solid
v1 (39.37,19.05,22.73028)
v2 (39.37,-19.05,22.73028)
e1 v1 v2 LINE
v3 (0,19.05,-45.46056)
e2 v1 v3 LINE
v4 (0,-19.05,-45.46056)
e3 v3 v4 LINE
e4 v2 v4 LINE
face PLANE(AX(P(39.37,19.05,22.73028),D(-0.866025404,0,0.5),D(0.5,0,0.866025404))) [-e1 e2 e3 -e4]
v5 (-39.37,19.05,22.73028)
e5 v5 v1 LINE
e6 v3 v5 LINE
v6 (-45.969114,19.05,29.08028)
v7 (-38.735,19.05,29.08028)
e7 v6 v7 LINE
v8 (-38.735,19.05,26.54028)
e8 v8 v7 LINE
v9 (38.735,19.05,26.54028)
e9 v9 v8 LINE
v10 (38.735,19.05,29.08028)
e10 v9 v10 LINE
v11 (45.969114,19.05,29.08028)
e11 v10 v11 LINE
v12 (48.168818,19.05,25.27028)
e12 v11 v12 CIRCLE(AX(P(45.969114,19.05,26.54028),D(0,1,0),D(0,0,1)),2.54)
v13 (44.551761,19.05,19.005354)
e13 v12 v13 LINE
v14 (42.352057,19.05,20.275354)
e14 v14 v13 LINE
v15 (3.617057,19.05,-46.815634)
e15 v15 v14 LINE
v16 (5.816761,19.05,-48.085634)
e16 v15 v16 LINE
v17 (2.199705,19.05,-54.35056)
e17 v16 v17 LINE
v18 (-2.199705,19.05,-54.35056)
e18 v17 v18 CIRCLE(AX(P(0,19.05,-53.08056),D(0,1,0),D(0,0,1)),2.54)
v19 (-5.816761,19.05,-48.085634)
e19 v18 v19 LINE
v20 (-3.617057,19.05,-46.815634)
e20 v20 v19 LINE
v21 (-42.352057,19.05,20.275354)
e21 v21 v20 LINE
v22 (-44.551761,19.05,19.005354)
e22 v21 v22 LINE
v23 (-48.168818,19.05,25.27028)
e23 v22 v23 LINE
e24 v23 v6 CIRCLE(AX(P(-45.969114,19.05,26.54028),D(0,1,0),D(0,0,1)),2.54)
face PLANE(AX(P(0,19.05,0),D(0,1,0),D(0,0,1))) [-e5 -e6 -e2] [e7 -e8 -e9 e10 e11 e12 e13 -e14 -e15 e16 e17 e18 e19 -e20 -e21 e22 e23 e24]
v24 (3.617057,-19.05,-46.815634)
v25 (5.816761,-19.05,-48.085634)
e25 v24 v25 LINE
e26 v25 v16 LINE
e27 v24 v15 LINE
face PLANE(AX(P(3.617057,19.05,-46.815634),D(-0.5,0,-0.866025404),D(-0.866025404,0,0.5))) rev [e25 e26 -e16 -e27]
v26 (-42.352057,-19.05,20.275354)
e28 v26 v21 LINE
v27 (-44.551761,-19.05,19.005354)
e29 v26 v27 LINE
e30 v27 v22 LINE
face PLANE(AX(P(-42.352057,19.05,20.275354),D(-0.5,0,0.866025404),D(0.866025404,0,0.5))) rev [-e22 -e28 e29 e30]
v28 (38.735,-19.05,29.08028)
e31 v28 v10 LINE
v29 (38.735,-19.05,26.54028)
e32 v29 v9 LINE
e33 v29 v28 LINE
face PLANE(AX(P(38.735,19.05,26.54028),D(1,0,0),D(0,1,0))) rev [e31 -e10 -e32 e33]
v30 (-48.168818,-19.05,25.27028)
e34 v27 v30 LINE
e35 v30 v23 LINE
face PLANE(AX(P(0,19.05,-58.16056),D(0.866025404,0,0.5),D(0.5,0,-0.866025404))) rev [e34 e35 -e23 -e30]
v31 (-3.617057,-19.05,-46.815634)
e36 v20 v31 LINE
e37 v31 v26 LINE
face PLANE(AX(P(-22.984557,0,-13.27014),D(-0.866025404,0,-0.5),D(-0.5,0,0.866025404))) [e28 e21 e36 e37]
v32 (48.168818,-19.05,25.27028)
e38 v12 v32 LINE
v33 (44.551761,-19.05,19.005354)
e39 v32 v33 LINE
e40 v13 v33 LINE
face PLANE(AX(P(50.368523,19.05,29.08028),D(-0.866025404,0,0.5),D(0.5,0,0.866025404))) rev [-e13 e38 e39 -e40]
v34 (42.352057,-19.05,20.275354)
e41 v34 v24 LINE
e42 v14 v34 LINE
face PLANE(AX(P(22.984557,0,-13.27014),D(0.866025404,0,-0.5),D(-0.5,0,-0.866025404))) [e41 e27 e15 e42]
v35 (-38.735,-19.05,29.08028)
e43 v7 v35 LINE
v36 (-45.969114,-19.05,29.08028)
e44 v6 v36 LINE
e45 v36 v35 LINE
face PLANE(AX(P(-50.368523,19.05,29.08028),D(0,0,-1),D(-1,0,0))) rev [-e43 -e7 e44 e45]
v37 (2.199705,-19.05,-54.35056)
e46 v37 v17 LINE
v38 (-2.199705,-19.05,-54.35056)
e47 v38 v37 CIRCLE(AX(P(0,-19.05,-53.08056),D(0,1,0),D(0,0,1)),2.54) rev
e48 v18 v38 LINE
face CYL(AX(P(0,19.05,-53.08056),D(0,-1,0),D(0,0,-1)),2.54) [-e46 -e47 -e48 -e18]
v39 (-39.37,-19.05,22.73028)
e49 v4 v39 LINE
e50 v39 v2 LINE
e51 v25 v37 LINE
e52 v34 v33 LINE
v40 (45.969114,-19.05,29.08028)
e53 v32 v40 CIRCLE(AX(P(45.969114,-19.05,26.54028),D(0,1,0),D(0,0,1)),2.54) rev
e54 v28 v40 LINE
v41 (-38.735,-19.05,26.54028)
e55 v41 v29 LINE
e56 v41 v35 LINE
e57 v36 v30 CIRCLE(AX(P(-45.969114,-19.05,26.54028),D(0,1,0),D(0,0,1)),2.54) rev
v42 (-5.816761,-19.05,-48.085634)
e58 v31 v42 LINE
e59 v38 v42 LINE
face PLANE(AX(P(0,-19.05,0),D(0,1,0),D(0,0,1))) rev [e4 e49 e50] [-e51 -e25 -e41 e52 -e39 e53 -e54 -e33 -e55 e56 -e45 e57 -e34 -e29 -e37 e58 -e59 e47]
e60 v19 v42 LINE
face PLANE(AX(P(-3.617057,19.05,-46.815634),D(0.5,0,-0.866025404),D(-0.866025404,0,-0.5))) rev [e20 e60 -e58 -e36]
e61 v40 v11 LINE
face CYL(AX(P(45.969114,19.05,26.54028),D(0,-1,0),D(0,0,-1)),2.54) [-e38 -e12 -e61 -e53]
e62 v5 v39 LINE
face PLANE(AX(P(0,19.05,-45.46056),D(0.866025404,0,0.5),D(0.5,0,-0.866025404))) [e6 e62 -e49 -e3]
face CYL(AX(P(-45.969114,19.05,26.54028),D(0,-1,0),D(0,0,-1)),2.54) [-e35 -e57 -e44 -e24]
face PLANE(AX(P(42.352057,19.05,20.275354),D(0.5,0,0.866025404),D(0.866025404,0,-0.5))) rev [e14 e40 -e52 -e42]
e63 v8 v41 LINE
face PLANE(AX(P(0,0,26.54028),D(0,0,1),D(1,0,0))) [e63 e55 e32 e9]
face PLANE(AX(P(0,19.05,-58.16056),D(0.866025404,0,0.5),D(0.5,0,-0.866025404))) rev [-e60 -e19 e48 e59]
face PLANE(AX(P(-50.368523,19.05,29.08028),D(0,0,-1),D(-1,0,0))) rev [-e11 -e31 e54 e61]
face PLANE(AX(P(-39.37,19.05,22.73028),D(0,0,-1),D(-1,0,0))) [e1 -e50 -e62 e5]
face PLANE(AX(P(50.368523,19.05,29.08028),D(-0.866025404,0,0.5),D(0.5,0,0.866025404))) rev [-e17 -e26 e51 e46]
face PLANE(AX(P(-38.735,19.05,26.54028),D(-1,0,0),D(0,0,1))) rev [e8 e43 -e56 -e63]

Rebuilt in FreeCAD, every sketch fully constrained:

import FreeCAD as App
import Part
import Sketcher

V = App.Vector
Q = App.Units.Quantity


def edges_at(feature, points):
    """Names of the edges that pass closest to the given points."""
    edges = feature.Shape.Edges
    near = lambda p: min(range(len(edges)), key=lambda i: edges[i].distToShape(Part.Vertex(*p))[0])
    return sorted({f"Edge{near(p) + 1}" for p in points})

doc = App.newDocument("Part")
params = doc.addObject("Spreadsheet::Sheet", "Params")
for row, (alias, value) in enumerate([
    ("sketch1_width", "3.1 in"),
    ("pad1_length", "1.5 in"),
    ("sketch2_height", "1.5 in"),
    ("sketch2_width", "3.05 in"),
    ("pocket1_length", "0.1 in"),
    ("fillet_radius", "0.1 in"),
], start=1):
    params.set(f"A{row}", alias)
    params.set(f"B{row}", "=" + value)
    params.setAlias(f"B{row}", alias)

body = doc.addObject("PartDesign::Body", "Body")

# Sketch on XZ plane
sketch1 = body.newObject("Sketcher::SketchObject", "Sketch")
sketch1.AttachmentSupport = (doc.getObject("XZ_Plane"), [""])
sketch1.MapMode = "FlatFace"
sketch1.addGeometry(Part.LineSegment(V(0, -58, 0), V(-50, 29, 0)), False)
sketch1.addGeometry(Part.LineSegment(V(-50, 29, 0), V(50, 29, 0)), False)
sketch1.addGeometry(Part.LineSegment(V(50, 29, 0), V(0, -58, 0)), False)
sketch1.addGeometry(Part.LineSegment(V(39, 23, 0), V(-39, 23, 0)), False)
sketch1.addGeometry(Part.LineSegment(V(-39, 23, 0), V(0, -45, 0)), False)
sketch1.addGeometry(Part.LineSegment(V(0, -45, 0), V(39, 23, 0)), False)
sketch1.addConstraint(Sketcher.Constraint("Coincident", 0, 2, 1, 1))
sketch1.addConstraint(Sketcher.Constraint("Coincident", 1, 2, 2, 1))
sketch1.addConstraint(Sketcher.Constraint("Coincident", 2, 2, 0, 1))
sketch1.addConstraint(Sketcher.Constraint("Coincident", 3, 2, 4, 1))
sketch1.addConstraint(Sketcher.Constraint("Coincident", 4, 2, 5, 1))
sketch1.addConstraint(Sketcher.Constraint("Coincident", 5, 2, 3, 1))
sketch1.addConstraint(Sketcher.Constraint("Horizontal", 1))
sketch1.addConstraint(Sketcher.Constraint("Horizontal", 3))
sketch1.addConstraint(Sketcher.Constraint("PointOnObject", 2, 2, -2))
sketch1.addConstraint(Sketcher.Constraint("PointOnObject", 4, 2, -2))
sketch1.addConstraint(Sketcher.Constraint("Parallel", 0, 4))
sketch1.addConstraint(Sketcher.Constraint("Parallel", 2, 5))
sketch1.addConstraint(Sketcher.Constraint("Equal", 0, 2))
sketch1.addConstraint(Sketcher.Constraint("DistanceX", 3, 2, 3, 1, Q("3.1 in")))
sketch1.addConstraint(Sketcher.Constraint("Angle", 0, Q("120 deg")))
sketch1.addConstraint(Sketcher.Constraint("DistanceY", 2, 2, 4, 2, Q("0.5 in")))
sketch1.addConstraint(Sketcher.Constraint("DistanceY", 3, 2, 0, 2, Q("0.25 in")))
sketch1.addConstraint(Sketcher.Constraint("DistanceY", -1, 1, 0, 2, 29.08028))
sketch1.setExpression("Constraints[13]", "Params.sketch1_width")
pad1 = body.newObject("PartDesign::Pad", "Pad")
pad1.Profile = sketch1
pad1.setExpression("Length", "Params.pad1_length")
pad1.Midplane = True

# Sketch on XY plane
sketch2 = body.newObject("Sketcher::SketchObject", "Sketch001")
sketch2.AttachmentSupport = (doc.getObject("XY_Plane"), [""])
sketch2.MapMode = "FlatFace"
sketch2.AttachmentOffset = App.Placement(V(0, 0, 29.08028), App.Rotation())
sketch2.addGeometry(Part.LineSegment(V(-39, 19, 0), V(-39, -19, 0)), False)
sketch2.addGeometry(Part.LineSegment(V(-39, -19, 0), V(39, -19, 0)), False)
sketch2.addGeometry(Part.LineSegment(V(39, -19, 0), V(39, 19, 0)), False)
sketch2.addGeometry(Part.LineSegment(V(39, 19, 0), V(-39, 19, 0)), False)
sketch2.addConstraint(Sketcher.Constraint("Coincident", 0, 2, 1, 1))
sketch2.addConstraint(Sketcher.Constraint("Coincident", 1, 2, 2, 1))
sketch2.addConstraint(Sketcher.Constraint("Coincident", 2, 2, 3, 1))
sketch2.addConstraint(Sketcher.Constraint("Coincident", 3, 2, 0, 1))
sketch2.addConstraint(Sketcher.Constraint("Vertical", 0))
sketch2.addConstraint(Sketcher.Constraint("Horizontal", 1))
sketch2.addConstraint(Sketcher.Constraint("Vertical", 2))
sketch2.addConstraint(Sketcher.Constraint("Horizontal", 3))
sketch2.addConstraint(Sketcher.Constraint("Symmetric", 0, 2, 2, 2, -1, 1))
sketch2.addConstraint(Sketcher.Constraint("DistanceY", 0, 2, 0, 1, Q("1.5 in")))
sketch2.addConstraint(Sketcher.Constraint("DistanceX", 1, 1, 1, 2, Q("3.05 in")))
sketch2.setExpression("Constraints[9]", "Params.sketch2_height")
sketch2.setExpression("Constraints[10]", "Params.sketch2_width")
pocket1 = body.newObject("PartDesign::Pocket", "Pocket")
pocket1.Profile = sketch2
pocket1.setExpression("Length", "Params.pocket1_length")
doc.recompute()

polarpattern = body.newObject("PartDesign::PolarPattern", "PolarPattern")
polarpattern.Originals = [pocket1]
polarpattern.Axis = (doc.getObject("Y_Axis"), [""])
polarpattern.Angle = 360
polarpattern.Occurrences = 3
body.Tip = polarpattern
doc.recompute()

fillet = body.newObject("PartDesign::Fillet", "Fillet")
fillet.Base = (polarpattern, edges_at(polarpattern, [(50.369, 0, 29.08), (-50.369, 0, 29.08), (0, 0, -58.161)]))
fillet.setExpression("Radius", "Params.fillet_radius")

doc.recompute()
